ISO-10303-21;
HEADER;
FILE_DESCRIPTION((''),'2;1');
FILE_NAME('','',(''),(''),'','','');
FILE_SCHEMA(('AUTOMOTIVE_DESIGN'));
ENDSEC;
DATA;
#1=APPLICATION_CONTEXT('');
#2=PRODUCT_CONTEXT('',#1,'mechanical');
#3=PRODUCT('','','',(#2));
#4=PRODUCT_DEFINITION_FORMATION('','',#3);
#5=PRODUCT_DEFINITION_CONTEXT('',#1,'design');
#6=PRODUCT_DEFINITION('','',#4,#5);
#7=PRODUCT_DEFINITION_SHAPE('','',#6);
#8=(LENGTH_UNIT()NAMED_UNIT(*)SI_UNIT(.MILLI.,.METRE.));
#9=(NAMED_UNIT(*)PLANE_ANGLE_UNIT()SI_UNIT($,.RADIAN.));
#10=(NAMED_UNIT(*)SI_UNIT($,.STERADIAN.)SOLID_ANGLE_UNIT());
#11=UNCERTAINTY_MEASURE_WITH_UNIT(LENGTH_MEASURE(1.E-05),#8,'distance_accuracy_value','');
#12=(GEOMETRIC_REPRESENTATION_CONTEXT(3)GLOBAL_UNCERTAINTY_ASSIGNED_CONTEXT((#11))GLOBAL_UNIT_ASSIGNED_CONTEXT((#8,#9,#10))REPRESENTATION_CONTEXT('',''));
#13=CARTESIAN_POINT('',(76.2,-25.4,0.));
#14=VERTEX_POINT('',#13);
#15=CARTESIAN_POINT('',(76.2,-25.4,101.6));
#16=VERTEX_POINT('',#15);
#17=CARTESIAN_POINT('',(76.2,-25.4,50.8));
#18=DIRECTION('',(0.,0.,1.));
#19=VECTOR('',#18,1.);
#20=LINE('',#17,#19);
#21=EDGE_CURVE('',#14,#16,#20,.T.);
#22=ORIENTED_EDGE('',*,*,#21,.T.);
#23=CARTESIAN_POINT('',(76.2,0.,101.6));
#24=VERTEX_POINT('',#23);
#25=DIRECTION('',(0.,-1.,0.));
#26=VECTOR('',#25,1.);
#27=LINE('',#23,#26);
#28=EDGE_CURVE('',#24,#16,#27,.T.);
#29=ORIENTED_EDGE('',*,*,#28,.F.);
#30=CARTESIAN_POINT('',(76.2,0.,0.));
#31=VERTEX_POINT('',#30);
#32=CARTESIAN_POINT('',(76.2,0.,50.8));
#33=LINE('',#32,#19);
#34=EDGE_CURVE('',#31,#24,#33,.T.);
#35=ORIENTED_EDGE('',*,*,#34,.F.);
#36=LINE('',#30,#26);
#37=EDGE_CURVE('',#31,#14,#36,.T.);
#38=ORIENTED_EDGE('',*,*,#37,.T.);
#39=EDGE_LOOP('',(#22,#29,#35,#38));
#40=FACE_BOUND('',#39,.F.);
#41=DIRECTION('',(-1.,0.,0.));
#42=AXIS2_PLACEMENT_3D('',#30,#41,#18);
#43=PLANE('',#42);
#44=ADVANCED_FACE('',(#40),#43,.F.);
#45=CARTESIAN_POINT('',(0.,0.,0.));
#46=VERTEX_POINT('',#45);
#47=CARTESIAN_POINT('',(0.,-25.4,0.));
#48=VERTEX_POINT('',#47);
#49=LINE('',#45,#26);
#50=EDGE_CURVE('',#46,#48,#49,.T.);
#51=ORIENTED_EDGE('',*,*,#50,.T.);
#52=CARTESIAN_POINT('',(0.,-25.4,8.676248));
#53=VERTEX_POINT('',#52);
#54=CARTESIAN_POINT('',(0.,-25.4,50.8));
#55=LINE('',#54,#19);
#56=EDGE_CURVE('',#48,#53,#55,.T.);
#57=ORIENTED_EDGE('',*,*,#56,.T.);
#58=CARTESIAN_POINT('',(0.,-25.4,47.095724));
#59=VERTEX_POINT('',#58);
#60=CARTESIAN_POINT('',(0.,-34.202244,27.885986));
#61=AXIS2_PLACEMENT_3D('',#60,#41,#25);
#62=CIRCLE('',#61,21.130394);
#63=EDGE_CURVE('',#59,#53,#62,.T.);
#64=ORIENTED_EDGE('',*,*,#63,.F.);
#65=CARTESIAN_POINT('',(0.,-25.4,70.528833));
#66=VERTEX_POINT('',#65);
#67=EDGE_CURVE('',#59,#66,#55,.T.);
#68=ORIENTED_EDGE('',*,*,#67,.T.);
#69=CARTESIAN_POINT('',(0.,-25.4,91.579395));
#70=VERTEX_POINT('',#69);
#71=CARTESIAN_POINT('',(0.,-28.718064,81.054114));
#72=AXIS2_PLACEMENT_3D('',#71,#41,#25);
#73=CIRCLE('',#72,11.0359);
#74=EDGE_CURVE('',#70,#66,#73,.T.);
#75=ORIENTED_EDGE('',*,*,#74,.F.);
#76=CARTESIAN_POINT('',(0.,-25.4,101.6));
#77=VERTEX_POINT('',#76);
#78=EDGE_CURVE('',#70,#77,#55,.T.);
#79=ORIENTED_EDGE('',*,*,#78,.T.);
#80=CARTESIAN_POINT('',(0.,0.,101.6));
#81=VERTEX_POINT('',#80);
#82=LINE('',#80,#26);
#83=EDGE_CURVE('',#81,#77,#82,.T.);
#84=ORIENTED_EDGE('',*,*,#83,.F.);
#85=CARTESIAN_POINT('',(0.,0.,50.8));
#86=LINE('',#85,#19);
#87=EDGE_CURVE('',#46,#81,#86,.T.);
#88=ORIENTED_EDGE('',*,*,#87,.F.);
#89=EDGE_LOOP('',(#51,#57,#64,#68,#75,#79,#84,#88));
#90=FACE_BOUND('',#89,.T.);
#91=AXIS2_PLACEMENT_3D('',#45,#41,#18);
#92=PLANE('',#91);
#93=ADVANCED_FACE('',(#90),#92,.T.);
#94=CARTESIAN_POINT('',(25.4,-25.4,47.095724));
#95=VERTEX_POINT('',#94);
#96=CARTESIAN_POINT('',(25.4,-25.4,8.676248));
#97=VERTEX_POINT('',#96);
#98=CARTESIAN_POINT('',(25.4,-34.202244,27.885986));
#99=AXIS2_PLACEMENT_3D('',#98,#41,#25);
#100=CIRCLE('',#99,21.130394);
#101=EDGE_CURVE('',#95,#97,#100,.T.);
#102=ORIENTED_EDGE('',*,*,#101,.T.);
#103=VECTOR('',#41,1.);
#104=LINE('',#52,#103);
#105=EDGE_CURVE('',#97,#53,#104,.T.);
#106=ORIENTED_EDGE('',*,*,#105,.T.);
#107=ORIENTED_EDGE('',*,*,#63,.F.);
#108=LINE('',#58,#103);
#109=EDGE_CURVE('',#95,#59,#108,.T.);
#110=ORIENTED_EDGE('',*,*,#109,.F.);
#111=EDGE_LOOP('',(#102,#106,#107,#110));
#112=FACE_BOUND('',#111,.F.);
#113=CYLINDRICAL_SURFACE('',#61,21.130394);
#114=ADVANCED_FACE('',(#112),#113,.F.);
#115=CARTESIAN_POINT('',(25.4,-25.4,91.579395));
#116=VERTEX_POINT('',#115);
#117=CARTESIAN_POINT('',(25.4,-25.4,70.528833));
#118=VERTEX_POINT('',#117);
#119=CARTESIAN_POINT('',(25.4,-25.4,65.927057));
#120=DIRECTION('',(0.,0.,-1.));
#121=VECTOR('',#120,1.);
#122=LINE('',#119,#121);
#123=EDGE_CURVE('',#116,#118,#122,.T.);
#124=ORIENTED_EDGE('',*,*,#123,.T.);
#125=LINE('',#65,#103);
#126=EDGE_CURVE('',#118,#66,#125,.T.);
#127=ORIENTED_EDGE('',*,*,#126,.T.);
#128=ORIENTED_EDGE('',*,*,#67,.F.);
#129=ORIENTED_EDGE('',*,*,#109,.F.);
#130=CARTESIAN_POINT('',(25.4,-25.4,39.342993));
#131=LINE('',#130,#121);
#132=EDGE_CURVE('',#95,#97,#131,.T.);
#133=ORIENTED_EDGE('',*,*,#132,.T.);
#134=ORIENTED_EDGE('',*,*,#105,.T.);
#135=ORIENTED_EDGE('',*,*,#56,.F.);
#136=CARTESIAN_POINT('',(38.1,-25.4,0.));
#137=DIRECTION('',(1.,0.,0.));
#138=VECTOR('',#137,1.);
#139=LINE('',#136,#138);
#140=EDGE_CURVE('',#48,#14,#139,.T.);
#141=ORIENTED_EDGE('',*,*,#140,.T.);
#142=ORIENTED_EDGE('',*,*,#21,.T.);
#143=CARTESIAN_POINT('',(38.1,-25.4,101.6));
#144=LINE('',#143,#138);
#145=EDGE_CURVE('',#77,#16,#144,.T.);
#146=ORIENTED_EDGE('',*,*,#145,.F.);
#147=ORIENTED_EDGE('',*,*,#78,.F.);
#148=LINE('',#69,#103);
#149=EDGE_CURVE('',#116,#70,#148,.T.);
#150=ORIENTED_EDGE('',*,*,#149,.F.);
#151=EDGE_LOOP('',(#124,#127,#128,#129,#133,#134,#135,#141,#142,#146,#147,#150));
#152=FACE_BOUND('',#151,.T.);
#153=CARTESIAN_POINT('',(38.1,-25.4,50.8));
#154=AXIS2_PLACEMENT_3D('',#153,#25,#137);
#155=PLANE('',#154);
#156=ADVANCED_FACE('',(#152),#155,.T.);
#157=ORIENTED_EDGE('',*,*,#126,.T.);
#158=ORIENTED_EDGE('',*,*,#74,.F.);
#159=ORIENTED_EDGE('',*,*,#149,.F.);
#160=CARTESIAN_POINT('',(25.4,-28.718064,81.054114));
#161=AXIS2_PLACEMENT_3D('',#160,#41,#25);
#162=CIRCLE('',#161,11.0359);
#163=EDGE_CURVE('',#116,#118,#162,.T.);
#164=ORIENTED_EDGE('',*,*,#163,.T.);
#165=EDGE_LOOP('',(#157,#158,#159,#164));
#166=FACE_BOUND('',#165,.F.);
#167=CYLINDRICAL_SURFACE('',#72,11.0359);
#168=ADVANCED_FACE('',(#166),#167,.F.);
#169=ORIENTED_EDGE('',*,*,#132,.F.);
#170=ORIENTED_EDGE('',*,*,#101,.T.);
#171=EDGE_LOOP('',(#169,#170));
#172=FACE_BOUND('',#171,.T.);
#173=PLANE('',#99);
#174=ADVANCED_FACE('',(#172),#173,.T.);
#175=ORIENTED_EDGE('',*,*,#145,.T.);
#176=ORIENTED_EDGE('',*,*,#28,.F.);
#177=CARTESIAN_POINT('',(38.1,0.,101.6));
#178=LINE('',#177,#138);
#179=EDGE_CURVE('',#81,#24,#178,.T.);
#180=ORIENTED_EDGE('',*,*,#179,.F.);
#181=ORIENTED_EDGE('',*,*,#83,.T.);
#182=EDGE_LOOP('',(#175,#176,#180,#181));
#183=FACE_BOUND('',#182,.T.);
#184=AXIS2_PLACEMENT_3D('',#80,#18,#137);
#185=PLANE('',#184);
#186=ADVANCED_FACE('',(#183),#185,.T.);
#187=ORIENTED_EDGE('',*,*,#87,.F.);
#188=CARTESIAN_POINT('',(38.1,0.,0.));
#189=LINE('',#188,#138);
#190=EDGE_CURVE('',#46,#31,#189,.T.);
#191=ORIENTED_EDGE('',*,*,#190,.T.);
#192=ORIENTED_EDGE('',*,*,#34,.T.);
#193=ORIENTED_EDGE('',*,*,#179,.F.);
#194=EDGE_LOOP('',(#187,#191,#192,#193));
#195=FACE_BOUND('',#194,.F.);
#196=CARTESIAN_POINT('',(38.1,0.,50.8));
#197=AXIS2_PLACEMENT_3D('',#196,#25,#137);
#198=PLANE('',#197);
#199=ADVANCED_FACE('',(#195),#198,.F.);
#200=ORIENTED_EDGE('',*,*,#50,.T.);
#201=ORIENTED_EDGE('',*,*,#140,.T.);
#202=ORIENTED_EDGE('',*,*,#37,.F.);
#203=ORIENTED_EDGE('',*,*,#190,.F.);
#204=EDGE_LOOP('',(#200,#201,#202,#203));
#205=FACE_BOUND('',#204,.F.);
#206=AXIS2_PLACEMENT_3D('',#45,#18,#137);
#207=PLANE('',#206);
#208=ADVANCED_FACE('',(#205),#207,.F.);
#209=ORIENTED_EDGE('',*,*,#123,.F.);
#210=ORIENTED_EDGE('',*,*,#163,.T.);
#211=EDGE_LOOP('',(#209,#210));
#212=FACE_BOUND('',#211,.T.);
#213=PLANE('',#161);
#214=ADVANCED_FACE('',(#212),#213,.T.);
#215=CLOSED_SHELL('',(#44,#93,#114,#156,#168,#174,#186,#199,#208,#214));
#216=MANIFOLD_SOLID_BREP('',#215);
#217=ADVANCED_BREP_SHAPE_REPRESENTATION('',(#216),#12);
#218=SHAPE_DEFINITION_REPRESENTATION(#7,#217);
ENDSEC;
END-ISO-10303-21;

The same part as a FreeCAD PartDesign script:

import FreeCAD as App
import Part
import Sketcher
Q = App.Units.Quantity


def add_polygon(sketch, points):
    """Adds a closed chain of lines whose ends are joined by coincident constraints."""
    first, n = sketch.GeometryCount, len(points)
    for a, b in zip(points, points[1:] + points[:1]):
        sketch.addGeometry(Part.LineSegment(App.Vector(*a, 0), App.Vector(*b, 0)), False)
    for i in range(n):
        sketch.addConstraint(Sketcher.Constraint("Coincident", first + i, 2, first + (i + 1) % n, 1))

doc = App.newDocument("Part")
body = doc.addObject("PartDesign::Body", "Body")

sketch1 = body.newObject("Sketcher::SketchObject", "Sketch")
sketch1.AttachmentSupport = (doc.getObject("XZ_Plane"), [""])
sketch1.MapMode = "FlatFace"
add_polygon(sketch1, [(0, 102), (0, 0), (76, 0), (76, 102)])
sketch1.addConstraint(Sketcher.Constraint("Vertical", 0))
sketch1.addConstraint(Sketcher.Constraint("Horizontal", 1))
sketch1.addConstraint(Sketcher.Constraint("Vertical", 2))
sketch1.addConstraint(Sketcher.Constraint("Horizontal", 3))
sketch1.addConstraint(Sketcher.Constraint("Coincident", 0, 2, -1, 1))
sketch1.addConstraint(Sketcher.Constraint("DistanceX", 1, 1, 1, 2, Q("3 in")))
sketch1.addConstraint(Sketcher.Constraint("DistanceY", 0, 2, 0, 1, Q("4 in")))
pad1 = body.newObject("PartDesign::Pad", "Pad")
pad1.Profile = sketch1
pad1.Length = Q("1 in")

sketch2 = body.newObject("Sketcher::SketchObject", "Sketch001")
sketch2.AttachmentSupport = (doc.getObject("YZ_Plane"), [""])
sketch2.MapMode = "FlatFace"
sketch2.addGeometry(Part.Circle(App.Vector(-29, 81, 0), App.Vector(0, 0, 1), 11), False)
sketch2.addGeometry(Part.Circle(App.Vector(-34, 28, 0), App.Vector(0, 0, 1), 21), False)
sketch2.addConstraint(Sketcher.Constraint("Diameter", 0, 22.0718))
sketch2.addConstraint(Sketcher.Constraint("Diameter", 1, 42.260788))
sketch2.addConstraint(Sketcher.Constraint("DistanceX", 1, 3, 0, 3, 5.48418))
sketch2.addConstraint(Sketcher.Constraint("DistanceX", 0, 3, -1, 1, 28.718064))
sketch2.addConstraint(Sketcher.Constraint("DistanceY", -1, 1, 0, 3, 81.054114))
sketch2.addConstraint(Sketcher.Constraint("DistanceY", -1, 1, 1, 3, 27.885986))
pocket1 = body.newObject("PartDesign::Pocket", "Pocket")
pocket1.Profile = sketch2
pocket1.Length = Q("1 in")
pocket1.Reversed = True

doc.recompute()
